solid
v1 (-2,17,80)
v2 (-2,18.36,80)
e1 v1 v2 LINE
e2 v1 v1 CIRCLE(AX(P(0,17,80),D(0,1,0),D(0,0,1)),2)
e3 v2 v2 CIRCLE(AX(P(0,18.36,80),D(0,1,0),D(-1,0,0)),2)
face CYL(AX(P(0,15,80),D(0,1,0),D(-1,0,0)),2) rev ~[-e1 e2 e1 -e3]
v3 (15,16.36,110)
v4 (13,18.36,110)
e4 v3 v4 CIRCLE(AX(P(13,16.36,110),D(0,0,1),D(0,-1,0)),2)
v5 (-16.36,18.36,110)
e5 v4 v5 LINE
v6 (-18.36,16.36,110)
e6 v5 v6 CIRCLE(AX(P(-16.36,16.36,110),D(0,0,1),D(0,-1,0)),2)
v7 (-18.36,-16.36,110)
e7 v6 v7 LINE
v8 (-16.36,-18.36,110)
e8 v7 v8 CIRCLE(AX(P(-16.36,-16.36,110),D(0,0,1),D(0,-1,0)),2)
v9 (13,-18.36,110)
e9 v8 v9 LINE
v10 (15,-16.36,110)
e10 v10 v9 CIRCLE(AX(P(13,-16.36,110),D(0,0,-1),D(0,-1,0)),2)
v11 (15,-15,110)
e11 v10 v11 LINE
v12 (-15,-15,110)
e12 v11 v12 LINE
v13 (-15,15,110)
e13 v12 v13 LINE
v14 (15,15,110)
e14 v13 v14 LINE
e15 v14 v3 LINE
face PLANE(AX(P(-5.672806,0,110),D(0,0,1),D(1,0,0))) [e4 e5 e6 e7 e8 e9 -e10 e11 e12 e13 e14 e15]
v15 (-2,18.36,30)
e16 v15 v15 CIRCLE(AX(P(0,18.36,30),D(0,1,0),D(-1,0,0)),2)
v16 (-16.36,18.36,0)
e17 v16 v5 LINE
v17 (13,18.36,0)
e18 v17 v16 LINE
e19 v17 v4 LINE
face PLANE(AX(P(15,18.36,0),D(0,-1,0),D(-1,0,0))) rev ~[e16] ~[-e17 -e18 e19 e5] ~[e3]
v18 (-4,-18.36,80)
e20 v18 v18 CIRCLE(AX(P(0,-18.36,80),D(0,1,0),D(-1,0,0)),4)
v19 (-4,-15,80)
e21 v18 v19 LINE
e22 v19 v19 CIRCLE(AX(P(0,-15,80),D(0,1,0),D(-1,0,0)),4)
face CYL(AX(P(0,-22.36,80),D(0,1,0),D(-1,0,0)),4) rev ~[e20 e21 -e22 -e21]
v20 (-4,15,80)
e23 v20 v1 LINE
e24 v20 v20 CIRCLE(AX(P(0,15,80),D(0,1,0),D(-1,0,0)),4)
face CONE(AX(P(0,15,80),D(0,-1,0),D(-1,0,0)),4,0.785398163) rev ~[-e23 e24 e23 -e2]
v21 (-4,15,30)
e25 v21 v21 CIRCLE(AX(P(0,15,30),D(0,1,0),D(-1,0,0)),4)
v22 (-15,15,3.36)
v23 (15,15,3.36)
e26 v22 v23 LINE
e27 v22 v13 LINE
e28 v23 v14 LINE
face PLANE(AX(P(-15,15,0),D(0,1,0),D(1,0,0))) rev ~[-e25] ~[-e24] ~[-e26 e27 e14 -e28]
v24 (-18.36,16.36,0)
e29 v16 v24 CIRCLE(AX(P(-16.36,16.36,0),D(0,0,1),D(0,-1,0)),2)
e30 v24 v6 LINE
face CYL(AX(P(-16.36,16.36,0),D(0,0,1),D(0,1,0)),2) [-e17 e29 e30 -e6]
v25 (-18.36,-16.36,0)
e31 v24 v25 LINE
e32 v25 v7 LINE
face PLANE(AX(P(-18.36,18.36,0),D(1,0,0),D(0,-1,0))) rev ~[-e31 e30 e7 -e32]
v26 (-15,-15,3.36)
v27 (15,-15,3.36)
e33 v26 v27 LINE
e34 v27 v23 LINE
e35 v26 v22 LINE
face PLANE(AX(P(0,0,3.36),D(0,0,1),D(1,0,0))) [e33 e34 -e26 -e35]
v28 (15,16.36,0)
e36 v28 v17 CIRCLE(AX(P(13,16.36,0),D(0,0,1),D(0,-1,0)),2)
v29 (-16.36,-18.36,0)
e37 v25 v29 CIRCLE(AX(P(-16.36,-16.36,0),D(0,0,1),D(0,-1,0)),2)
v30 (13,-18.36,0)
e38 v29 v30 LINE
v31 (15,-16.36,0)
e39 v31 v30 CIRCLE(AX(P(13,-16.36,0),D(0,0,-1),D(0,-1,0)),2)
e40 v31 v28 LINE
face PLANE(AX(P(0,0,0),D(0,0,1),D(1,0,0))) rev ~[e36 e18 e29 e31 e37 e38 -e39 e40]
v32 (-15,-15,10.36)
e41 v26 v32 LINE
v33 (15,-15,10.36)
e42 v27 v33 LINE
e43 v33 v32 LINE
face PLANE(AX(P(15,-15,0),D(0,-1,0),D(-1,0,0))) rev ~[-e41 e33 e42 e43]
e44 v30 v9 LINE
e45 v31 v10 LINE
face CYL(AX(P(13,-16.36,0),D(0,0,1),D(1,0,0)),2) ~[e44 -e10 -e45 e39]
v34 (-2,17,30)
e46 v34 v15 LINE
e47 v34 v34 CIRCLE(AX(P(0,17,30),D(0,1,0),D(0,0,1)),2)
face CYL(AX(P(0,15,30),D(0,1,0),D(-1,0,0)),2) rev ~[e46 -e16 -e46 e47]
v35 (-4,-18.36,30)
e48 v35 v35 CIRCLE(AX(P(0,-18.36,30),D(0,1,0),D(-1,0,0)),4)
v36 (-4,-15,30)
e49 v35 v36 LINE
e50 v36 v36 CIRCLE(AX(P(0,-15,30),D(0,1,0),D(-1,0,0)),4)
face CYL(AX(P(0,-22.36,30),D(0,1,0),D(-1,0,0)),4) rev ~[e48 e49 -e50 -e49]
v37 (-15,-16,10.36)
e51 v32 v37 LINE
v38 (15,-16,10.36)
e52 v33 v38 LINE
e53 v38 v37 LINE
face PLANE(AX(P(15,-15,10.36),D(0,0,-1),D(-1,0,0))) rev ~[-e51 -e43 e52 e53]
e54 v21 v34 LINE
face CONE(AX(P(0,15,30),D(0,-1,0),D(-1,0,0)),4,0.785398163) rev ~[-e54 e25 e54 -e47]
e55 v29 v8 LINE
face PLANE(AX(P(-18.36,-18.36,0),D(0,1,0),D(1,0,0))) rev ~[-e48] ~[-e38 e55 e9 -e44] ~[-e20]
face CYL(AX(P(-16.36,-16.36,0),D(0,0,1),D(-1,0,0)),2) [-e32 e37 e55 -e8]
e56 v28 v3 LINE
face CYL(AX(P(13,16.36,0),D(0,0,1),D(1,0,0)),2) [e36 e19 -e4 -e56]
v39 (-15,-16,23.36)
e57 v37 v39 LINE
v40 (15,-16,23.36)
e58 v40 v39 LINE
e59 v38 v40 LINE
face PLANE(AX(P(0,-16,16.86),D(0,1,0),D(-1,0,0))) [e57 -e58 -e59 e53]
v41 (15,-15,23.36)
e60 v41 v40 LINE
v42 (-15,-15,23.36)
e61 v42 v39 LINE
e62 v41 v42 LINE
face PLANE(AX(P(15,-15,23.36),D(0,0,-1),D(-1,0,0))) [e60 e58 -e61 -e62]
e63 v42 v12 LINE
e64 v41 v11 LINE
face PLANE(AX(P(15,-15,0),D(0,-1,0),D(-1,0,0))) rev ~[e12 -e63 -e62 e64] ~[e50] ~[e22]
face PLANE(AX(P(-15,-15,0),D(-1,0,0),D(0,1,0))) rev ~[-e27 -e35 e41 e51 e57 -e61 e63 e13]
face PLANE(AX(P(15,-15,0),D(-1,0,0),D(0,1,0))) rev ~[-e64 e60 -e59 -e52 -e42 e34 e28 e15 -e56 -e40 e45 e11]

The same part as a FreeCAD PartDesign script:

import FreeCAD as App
import Part
import Sketcher


def edges_at(feature, points):
    """Names of the edges that pass closest to the given points."""
    edges = feature.Shape.Edges
    near = lambda p: min(range(len(edges)), key=lambda i: edges[i].distToShape(Part.Vertex(*p))[0])
    return sorted({f"Edge{near(p) + 1}" for p in points})


def add_polygon(sketch, points):
    """Adds a closed chain of lines whose ends are joined by coincident constraints."""
    first, n = sketch.GeometryCount, len(points)
    for a, b in zip(points, points[1:] + points[:1]):
        sketch.addGeometry(Part.LineSegment(App.Vector(*a, 0), App.Vector(*b, 0)), False)
    for i in range(n):
        sketch.addConstraint(Sketcher.Constraint("Coincident", first + i, 2, first + (i + 1) % n, 1))

doc = App.newDocument("Part")
body = doc.addObject("PartDesign::Body", "Body")

# Sketch on XY plane
sketch1 = body.newObject("Sketcher::SketchObject", "Sketch")
sketch1.AttachmentSupport = (doc.getObject("XY_Plane"), [""])
sketch1.MapMode = "FlatFace"
add_polygon(sketch1, [(15, -18.36), (15, -15), (-15, -15), (-15, 15), (15, 15), (15, 18.36), (-18.36, 18.36), (-18.36, -18.36)])  # lines 0-7
sketch1.addConstraint([
    Sketcher.Constraint("Vertical", 0),
    Sketcher.Constraint("Horizontal", 1),
    Sketcher.Constraint("Vertical", 2),
    Sketcher.Constraint("Horizontal", 3),
    Sketcher.Constraint("Vertical", 4),
    Sketcher.Constraint("Horizontal", 5),
    Sketcher.Constraint("Vertical", 6),
    Sketcher.Constraint("Horizontal", 7),
    Sketcher.Constraint("Symmetric", 0, 2, 2, 2, -1, 1),
    Sketcher.Constraint("Symmetric", 4, 2, 7, 2, -1),
    Sketcher.Constraint("Equal", 3, 2),
    Sketcher.Constraint("DistanceX", 1, 2, 1, 1, 30.0),
    Sketcher.Constraint("DistanceX", 5, 2, 5, 1, 33.36),
    Sketcher.Constraint("DistanceY", 0, 1, 0, 2, 3.36),
])
pad1 = body.newObject("PartDesign::Pad", "Pad")
pad1.Profile = sketch1
pad1.Length = 110

# Sketch on XY plane
sketch2 = body.newObject("Sketcher::SketchObject", "Sketch001")
sketch2.AttachmentSupport = (doc.getObject("XY_Plane"), [""])
sketch2.MapMode = "FlatFace"
add_polygon(sketch2, [(-15, 15), (-15, -15), (15, -15), (15, 15)])  # lines 0-3
sketch2.addConstraint([
    Sketcher.Constraint("Vertical", 0),
    Sketcher.Constraint("Horizontal", 1),
    Sketcher.Constraint("Vertical", 2),
    Sketcher.Constraint("Horizontal", 3),
    Sketcher.Constraint("Symmetric", 0, 2, 2, 2, -1, 1),
    Sketcher.Constraint("Equal", 3, 0),
    Sketcher.Constraint("DistanceX", 1, 1, 1, 2, 30.0),
])
pad2 = body.newObject("PartDesign::Pad", "Pad001")
pad2.Profile = sketch2
pad2.Length = 3.36
doc.recompute()

fillet = body.newObject("PartDesign::Fillet", "Fillet")
fillet.Base = (pad2, edges_at(pad2, [
    (-18.36, -18.36, 55),
    (-18.36, 18.36, 55),
    (15, -18.36, 55),
    (15, 18.36, 55),
]))
fillet.Radius = 2

# Sketch on XZ plane
sketch3 = body.newObject("Sketcher::SketchObject", "Sketch002")
sketch3.AttachmentSupport = (doc.getObject("XZ_Plane"), [""])
sketch3.MapMode = "FlatFace"
sketch3.AttachmentOffset = App.Placement(App.Vector(0, 0, 18.36), App.Rotation())
sketch3.addGeometry([
    Part.Circle(App.Vector(0, 30, 0), App.Vector(0, 0, 1), 4),
    Part.Circle(App.Vector(0, 80, 0), App.Vector(0, 0, 1), 4),
], False)
sketch3.addConstraint([
    Sketcher.Constraint("Equal", 0, 1),
    Sketcher.Constraint("PointOnObject", 0, 3, -2),
    Sketcher.Constraint("PointOnObject", 1, 3, -2),
    Sketcher.Constraint("Diameter", 0, 8.0),
    Sketcher.Constraint("DistanceY", -1, 1, 0, 3, 30.0),
    Sketcher.Constraint("DistanceY", -1, 1, 1, 3, 80.0),
])
doc.recompute()
hole = body.newObject("PartDesign::Hole", "Hole")
hole.Profile = sketch3
hole.ThreadType = "None"
hole.Diameter = 8
hole.DepthType = "Dimension"
hole.Depth = 4
hole.DrillPoint = "Flat"

# Sketch on XZ plane
sketch4 = body.newObject("Sketcher::SketchObject", "Sketch003")
sketch4.AttachmentSupport = (doc.getObject("XZ_Plane"), [""])
sketch4.MapMode = "FlatFace"
sketch4.AttachmentOffset = App.Placement(App.Vector(0, 0, -15), App.Rotation())
sketch4.addGeometry([
    Part.Circle(App.Vector(0, 30, 0), App.Vector(0, 0, 1), 2),
    Part.Circle(App.Vector(0, 80, 0), App.Vector(0, 0, 1), 2),
], False)
sketch4.addConstraint([
    Sketcher.Constraint("Equal", 0, 1),
    Sketcher.Constraint("PointOnObject", 0, 3, -2),
    Sketcher.Constraint("PointOnObject", 1, 3, -2),
    Sketcher.Constraint("Diameter", 0, 4.0),
    Sketcher.Constraint("DistanceY", -1, 1, 0, 3, 30.0),
    Sketcher.Constraint("DistanceY", -1, 1, 1, 3, 80.0),
])
doc.recompute()
hole2 = body.newObject("PartDesign::Hole", "Hole001")
hole2.Profile = sketch4
hole2.ThreadType = "None"
hole2.Diameter = 4
hole2.DepthType = "Dimension"
hole2.Depth = 4
hole2.DrillPoint = "Flat"
hole2.HoleCutType = "Countersink"
hole2.HoleCutDiameter = 8
hole2.HoleCutCountersinkAngle = 90

# Sketch on XZ plane
sketch5 = body.newObject("Sketcher::SketchObject", "Sketch004")
sketch5.AttachmentSupport = (doc.getObject("XZ_Plane"), [""])
sketch5.MapMode = "FlatFace"
sketch5.AttachmentOffset = App.Placement(App.Vector(0, 0, 15), App.Rotation())
add_polygon(sketch5, [(15, 23.36), (15, 10.36), (-15, 10.36), (-15, 23.36)])  # lines 0-3
sketch5.addConstraint([
    Sketcher.Constraint("Vertical", 0),
    Sketcher.Constraint("Horizontal", 1),
    Sketcher.Constraint("Vertical", 2),
    Sketcher.Constraint("Horizontal", 3),
    Sketcher.Constraint("DistanceX", 1, 2, 1, 1, 30.0),
    Sketcher.Constraint("DistanceY", 0, 2, 0, 1, 13.0),
    Sketcher.Constraint("DistanceX", -1, 1, 0, 2, 15.0),
    Sketcher.Constraint("DistanceY", -1, 1, 0, 2, 10.36),
])
pocket1 = body.newObject("PartDesign::Pocket", "Pocket")
pocket1.Profile = sketch5
pocket1.Length = 1
pocket1.Reversed = True

doc.recompute()
